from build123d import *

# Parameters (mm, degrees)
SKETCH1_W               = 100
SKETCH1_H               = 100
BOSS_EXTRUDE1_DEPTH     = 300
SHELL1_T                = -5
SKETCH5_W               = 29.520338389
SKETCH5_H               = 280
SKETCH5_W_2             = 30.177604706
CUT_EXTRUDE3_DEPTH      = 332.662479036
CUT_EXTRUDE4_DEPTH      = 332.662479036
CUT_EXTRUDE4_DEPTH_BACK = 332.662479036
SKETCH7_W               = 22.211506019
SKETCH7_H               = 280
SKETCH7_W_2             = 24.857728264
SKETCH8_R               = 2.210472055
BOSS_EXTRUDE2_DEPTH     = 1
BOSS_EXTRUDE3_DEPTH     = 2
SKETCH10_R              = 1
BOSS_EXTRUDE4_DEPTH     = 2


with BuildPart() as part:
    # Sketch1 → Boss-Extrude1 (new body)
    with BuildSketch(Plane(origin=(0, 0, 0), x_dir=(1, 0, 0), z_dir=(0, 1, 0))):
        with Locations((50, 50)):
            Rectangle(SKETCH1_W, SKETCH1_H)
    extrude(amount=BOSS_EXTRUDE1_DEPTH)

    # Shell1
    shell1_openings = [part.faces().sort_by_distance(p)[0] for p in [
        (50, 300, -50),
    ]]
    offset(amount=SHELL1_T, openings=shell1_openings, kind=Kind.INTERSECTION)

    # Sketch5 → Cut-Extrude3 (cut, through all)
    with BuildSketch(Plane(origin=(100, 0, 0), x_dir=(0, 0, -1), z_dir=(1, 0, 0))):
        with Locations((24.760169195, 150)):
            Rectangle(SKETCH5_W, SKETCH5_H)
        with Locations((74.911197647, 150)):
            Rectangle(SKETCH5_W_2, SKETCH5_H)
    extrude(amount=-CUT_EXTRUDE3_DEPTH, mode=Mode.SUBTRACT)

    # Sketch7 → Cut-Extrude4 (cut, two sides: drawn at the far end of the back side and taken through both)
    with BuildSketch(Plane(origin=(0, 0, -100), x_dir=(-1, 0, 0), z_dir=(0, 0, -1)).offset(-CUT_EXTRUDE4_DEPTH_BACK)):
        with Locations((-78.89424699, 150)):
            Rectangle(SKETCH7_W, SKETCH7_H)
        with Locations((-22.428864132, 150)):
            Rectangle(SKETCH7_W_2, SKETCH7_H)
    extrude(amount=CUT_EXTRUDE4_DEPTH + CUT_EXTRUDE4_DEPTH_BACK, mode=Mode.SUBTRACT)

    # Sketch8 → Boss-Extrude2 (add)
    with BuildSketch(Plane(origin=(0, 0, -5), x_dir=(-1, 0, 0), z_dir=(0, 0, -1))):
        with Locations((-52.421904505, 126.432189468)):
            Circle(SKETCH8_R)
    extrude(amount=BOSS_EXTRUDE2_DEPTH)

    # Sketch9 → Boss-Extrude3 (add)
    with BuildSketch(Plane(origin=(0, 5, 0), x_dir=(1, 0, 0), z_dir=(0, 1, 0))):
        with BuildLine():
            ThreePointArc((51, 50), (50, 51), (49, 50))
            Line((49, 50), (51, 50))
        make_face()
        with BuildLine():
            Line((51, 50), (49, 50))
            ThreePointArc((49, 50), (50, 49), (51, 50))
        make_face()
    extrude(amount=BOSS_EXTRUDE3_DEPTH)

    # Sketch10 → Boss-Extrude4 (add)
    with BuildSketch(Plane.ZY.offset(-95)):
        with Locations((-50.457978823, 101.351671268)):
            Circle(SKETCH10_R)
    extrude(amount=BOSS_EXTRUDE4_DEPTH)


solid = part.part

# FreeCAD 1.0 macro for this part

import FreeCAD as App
import Part
import Sketcher
Q = App.Units.Quantity


def faces_at(feature, points):
    """Names of the faces that lie closest to the given points."""
    faces = feature.Shape.Faces
    near = lambda p: min(range(len(faces)), key=lambda i: faces[i].distToShape(Part.Vertex(*p))[0])
    return sorted({f"Face{near(p) + 1}" for p in points})


def add_polygon(sketch, points):
    """Adds a closed chain of lines whose ends are joined by coincident constraints."""
    first, n = sketch.GeometryCount, len(points)
    for a, b in zip(points, points[1:] + points[:1]):
        sketch.addGeometry(Part.LineSegment(App.Vector(*a, 0), App.Vector(*b, 0)), False)
    for i in range(n):
        sketch.addConstraint(Sketcher.Constraint("Coincident", first + i, 2, first + (i + 1) % n, 1))

doc = App.newDocument("Part")
body = doc.addObject("PartDesign::Body", "Body")

# Sketch on XZ plane
sketch1 = body.newObject("Sketcher::SketchObject", "Sketch")
sketch1.AttachmentSupport = (doc.getObject("XZ_Plane"), [""])
sketch1.MapMode = "FlatFace"
add_polygon(sketch1, [(0, -100), (0, 0), (100, 0), (100, -100)])  # lines 0-3
sketch1.addConstraint(Sketcher.Constraint("Vertical", 0))
sketch1.addConstraint(Sketcher.Constraint("Horizontal", 1))
sketch1.addConstraint(Sketcher.Constraint("Vertical", 2))
sketch1.addConstraint(Sketcher.Constraint("Horizontal", 3))
sketch1.addConstraint(Sketcher.Constraint("Coincident", 0, 2, -1, 1))
sketch1.addConstraint(Sketcher.Constraint("Equal", 3, 0))
sketch1.addConstraint(Sketcher.Constraint("DistanceX", 1, 1, 1, 2, Q("100 mm")))
pad1 = body.newObject("PartDesign::Pad", "Pad")
pad1.Profile = sketch1
pad1.Length = 300
pad1.Reversed = True
doc.recompute()

thickness = body.newObject("PartDesign::Thickness", "Thickness")
thickness.Base = (pad1, faces_at(pad1, [(50, 300, -50)]))
thickness.Value = 5
thickness.Reversed = True
thickness.Join = "Intersection"

# Sketch on YZ plane
sketch2 = body.newObject("Sketcher::SketchObject", "Sketch001")
sketch2.AttachmentSupport = (doc.getObject("YZ_Plane"), [""])
sketch2.MapMode = "FlatFace"
sketch2.AttachmentOffset = App.Placement(App.Vector(0, 0, 100), App.Rotation())
add_polygon(sketch2, [(290, -10), (10, -10), (10, -40), (290, -40)])  # lines 0-3
add_polygon(sketch2, [(290, -60), (10, -60), (10, -90), (290, -90)])  # lines 4-7
sketch2.addConstraint(Sketcher.Constraint("Horizontal", 0))
sketch2.addConstraint(Sketcher.Constraint("Vertical", 1))
sketch2.addConstraint(Sketcher.Constraint("Horizontal", 2))
sketch2.addConstraint(Sketcher.Constraint("Vertical", 3))
sketch2.addConstraint(Sketcher.Constraint("Horizontal", 4))
sketch2.addConstraint(Sketcher.Constraint("Vertical", 5))
sketch2.addConstraint(Sketcher.Constraint("Horizontal", 6))
sketch2.addConstraint(Sketcher.Constraint("Vertical", 7))
sketch2.addConstraint(Sketcher.Constraint("Vertical", 1, 2, 4, 2))
sketch2.addConstraint(Sketcher.Constraint("Vertical", 3, 2, 6, 2))
sketch2.addConstraint(Sketcher.Constraint("DistanceX", 0, 2, 0, 1, Q("280 mm")))
sketch2.addConstraint(Sketcher.Constraint("DistanceX", -1, 1, 0, 2, Q("10 mm")))
sketch2.addConstraint(Sketcher.Constraint("DistanceY", 0, 2, -1, 1, Q("10 mm")))
sketch2.addConstraint(Sketcher.Constraint("DistanceY", 5, 2, -1, 1, Q("90 mm")))
sketch2.addConstraint(Sketcher.Constraint("DistanceY", 1, 2, 1, 1, Q("29.520338 mm")))
sketch2.addConstraint(Sketcher.Constraint("DistanceY", 5, 2, 5, 1, Q("30.177605 mm")))
pocket1 = body.newObject("PartDesign::Pocket", "Pocket")
pocket1.Profile = sketch2
pocket1.Type = "ThroughAll"

# Sketch on XY plane
sketch3 = body.newObject("Sketcher::SketchObject", "Sketch002")
sketch3.AttachmentSupport = (doc.getObject("XY_Plane"), [""])
sketch3.MapMode = "FlatFace"
sketch3.AttachmentOffset = App.Placement(App.Vector(0, 0, -100), App.Rotation())
add_polygon(sketch3, [(90, 290), (90, 10), (68, 10), (68, 290)])  # lines 0-3
add_polygon(sketch3, [(35, 290), (35, 10), (10, 10), (10, 290)])  # lines 4-7
sketch3.addConstraint(Sketcher.Constraint("Vertical", 0))
sketch3.addConstraint(Sketcher.Constraint("Horizontal", 1))
sketch3.addConstraint(Sketcher.Constraint("Vertical", 2))
sketch3.addConstraint(Sketcher.Constraint("Horizontal", 3))
sketch3.addConstraint(Sketcher.Constraint("Vertical", 4))
sketch3.addConstraint(Sketcher.Constraint("Horizontal", 5))
sketch3.addConstraint(Sketcher.Constraint("Vertical", 6))
sketch3.addConstraint(Sketcher.Constraint("Horizontal", 7))
sketch3.addConstraint(Sketcher.Constraint("Horizontal", 1, 2, 4, 2))
sketch3.addConstraint(Sketcher.Constraint("Horizontal", 3, 2, 6, 2))
sketch3.addConstraint(Sketcher.Constraint("DistanceY", 0, 2, 0, 1, Q("280 mm")))
sketch3.addConstraint(Sketcher.Constraint("DistanceX", -1, 1, 0, 2, Q("90 mm")))
sketch3.addConstraint(Sketcher.Constraint("DistanceY", -1, 1, 0, 2, Q("10 mm")))
sketch3.addConstraint(Sketcher.Constraint("DistanceX", -1, 1, 5, 2, Q("10 mm")))
sketch3.addConstraint(Sketcher.Constraint("DistanceX", 5, 2, 5, 1, Q("24.857728 mm")))
sketch3.addConstraint(Sketcher.Constraint("DistanceX", 1, 2, 1, 1, Q("22.211506 mm")))
pocket2 = body.newObject("PartDesign::Pocket", "Pocket001")
pocket2.Profile = sketch3
pocket2.Type = "ThroughAll"
pocket2.Midplane = True

# Sketch on XY plane
sketch4 = body.newObject("Sketcher::SketchObject", "Sketch003")
sketch4.AttachmentSupport = (doc.getObject("XY_Plane"), [""])
sketch4.MapMode = "FlatFace"
sketch4.AttachmentOffset = App.Placement(App.Vector(0, 0, -5), App.Rotation())
sketch4.addGeometry(Part.Circle(App.Vector(52.4, 126.4, 0), App.Vector(0, 0, 1), 2.2), False)
sketch4.addConstraint(Sketcher.Constraint("Diameter", 0, Q("4.420944 mm")))
sketch4.addConstraint(Sketcher.Constraint("DistanceY", -1, 1, 0, 3, Q("126.432189 mm")))
sketch4.addConstraint(Sketcher.Constraint("DistanceX", -1, 1, 0, 3, Q("52.421905 mm")))
pad2 = body.newObject("PartDesign::Pad", "Pad001")
pad2.Profile = sketch4
pad2.Length = 1
pad2.Reversed = True

# Sketch on XZ plane
sketch5 = body.newObject("Sketcher::SketchObject", "Sketch004")
sketch5.AttachmentSupport = (doc.getObject("XZ_Plane"), [""])
sketch5.MapMode = "FlatFace"
sketch5.AttachmentOffset = App.Placement(App.Vector(0, 0, -5), App.Rotation())
sketch5.addGeometry(Part.Circle(App.Vector(50, -50, 0), App.Vector(0, 0, 1), 1), False)
sketch5.addConstraint(Sketcher.Constraint("Diameter", 0, Q("2 mm")))
sketch5.addConstraint(Sketcher.Constraint("DistanceX", -1, 1, 0, 3, Q("50 mm")))
sketch5.addConstraint(Sketcher.Constraint("DistanceY", 0, 3, -1, 1, Q("50 mm")))
pad3 = body.newObject("PartDesign::Pad", "Pad002")
pad3.Profile = sketch5
pad3.Length = 2
pad3.Reversed = True

# Sketch on YZ plane
sketch6 = body.newObject("Sketcher::SketchObject", "Sketch005")
sketch6.AttachmentSupport = (doc.getObject("YZ_Plane"), [""])
sketch6.MapMode = "FlatFace"
sketch6.AttachmentOffset = App.Placement(App.Vector(0, 0, 95), App.Rotation())
sketch6.addGeometry(Part.Circle(App.Vector(101.4, -50.5, 0), App.Vector(0, 0, 1), 1), False)
sketch6.addConstraint(Sketcher.Constraint("Diameter", 0, Q("2 mm")))
sketch6.addConstraint(Sketcher.Constraint("DistanceX", -1, 1, 0, 3, Q("101.351671 mm")))
sketch6.addConstraint(Sketcher.Constraint("DistanceY", 0, 3, -1, 1, Q("50.457979 mm")))
pad4 = body.newObject("PartDesign::Pad", "Pad003")
pad4.Profile = sketch6
pad4.Length = 2
pad4.Reversed = True

doc.recompute()
